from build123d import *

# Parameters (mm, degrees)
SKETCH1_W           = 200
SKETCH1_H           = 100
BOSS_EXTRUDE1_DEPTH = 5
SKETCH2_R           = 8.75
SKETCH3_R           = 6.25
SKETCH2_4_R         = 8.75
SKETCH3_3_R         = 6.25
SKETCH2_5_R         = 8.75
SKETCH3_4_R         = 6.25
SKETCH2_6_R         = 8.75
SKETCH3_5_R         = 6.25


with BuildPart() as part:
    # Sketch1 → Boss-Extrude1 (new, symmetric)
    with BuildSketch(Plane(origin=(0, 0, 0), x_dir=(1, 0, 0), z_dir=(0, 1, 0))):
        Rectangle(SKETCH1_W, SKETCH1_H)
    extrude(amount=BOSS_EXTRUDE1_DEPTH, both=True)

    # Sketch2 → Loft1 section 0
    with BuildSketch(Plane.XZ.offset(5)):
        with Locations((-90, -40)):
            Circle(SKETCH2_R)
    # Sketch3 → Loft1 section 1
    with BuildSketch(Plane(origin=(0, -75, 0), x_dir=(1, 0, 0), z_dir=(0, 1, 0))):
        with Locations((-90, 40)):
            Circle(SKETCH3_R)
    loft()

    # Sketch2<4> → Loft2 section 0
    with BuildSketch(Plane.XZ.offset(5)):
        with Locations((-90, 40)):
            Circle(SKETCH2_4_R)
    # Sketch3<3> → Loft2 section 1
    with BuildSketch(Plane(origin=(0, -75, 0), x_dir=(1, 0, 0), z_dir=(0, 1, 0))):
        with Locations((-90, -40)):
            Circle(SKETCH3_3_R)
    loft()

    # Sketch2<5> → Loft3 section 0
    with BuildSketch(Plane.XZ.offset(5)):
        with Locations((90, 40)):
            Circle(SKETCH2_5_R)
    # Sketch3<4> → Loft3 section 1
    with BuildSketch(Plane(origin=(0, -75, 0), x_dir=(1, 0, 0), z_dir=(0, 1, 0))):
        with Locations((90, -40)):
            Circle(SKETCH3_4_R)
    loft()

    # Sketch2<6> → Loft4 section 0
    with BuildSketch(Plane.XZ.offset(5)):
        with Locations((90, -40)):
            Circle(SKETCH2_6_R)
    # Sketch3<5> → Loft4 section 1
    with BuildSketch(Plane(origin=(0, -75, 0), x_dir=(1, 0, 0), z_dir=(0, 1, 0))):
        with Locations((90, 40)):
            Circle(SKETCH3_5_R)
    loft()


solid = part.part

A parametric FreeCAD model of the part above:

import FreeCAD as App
import Part
import Sketcher

V = App.Vector
Q = App.Units.Quantity

doc = App.newDocument("Part")
params = doc.addObject("Spreadsheet::Sheet", "Params")
for row, (alias, value) in enumerate([
    ("sketch1_width", "200 mm"),
    ("sketch1_height", "100 mm"),
    ("pad1_length", "10 mm"),
    ("sketch2_diameter", "17.5 mm"),
    ("sketch3_diameter", "12.5 mm"),
    ("sketch4_diameter", "17.5 mm"),
    ("sketch5_diameter", "12.5 mm"),
    ("sketch6_diameter", "17.5 mm"),
    ("sketch7_diameter", "12.5 mm"),
    ("sketch8_diameter", "17.5 mm"),
    ("sketch9_diameter", "12.5 mm"),
], start=1):
    params.set(f"A{row}", alias)
    params.set(f"B{row}", "=" + value)
    params.setAlias(f"B{row}", alias)

body = doc.addObject("PartDesign::Body", "Body")

# Sketch on XZ plane
sketch1 = doc.addObject("Sketcher::SketchObject", "Sketch")
body.addObject(sketch1)
sketch1.AttachmentSupport = (doc.XZ_Plane, [""])
sketch1.MapMode = "FlatFace"
sketch1.addGeometry([
    Part.LineSegment(V(-100, -50, 0), V(-100, 50, 0)),
    Part.LineSegment(V(-100, 50, 0), V(100, 50, 0)),
    Part.LineSegment(V(100, 50, 0), V(100, -50, 0)),
    Part.LineSegment(V(100, -50, 0), V(-100, -50, 0)),
], False)
sketch1.addConstraint([
    Sketcher.Constraint("Coincident", 0, 2, 1, 1),
    Sketcher.Constraint("Coincident", 1, 2, 2, 1),
    Sketcher.Constraint("Coincident", 2, 2, 3, 1),
    Sketcher.Constraint("Coincident", 3, 2, 0, 1),
    Sketcher.Constraint("Vertical", 0),
    Sketcher.Constraint("Horizontal", 1),
    Sketcher.Constraint("Vertical", 2),
    Sketcher.Constraint("Horizontal", 3),
    Sketcher.Constraint("Symmetric", 0, 2, 2, 2, -1, 1),
    Sketcher.Constraint("DistanceX", 1, 1, 1, 2, Q("200 mm")),
    Sketcher.Constraint("DistanceY", 0, 1, 0, 2, Q("100 mm")),
])
sketch1.setExpression("Constraints[9]", "Params.sketch1_width")
sketch1.setExpression("Constraints[10]", "Params.sketch1_height")
pad1 = doc.addObject("PartDesign::Pad", "Pad")
body.addObject(pad1)
pad1.Profile = sketch1
pad1.setExpression("Length", "Params.pad1_length")
pad1.Midplane = True

# Sketch on XZ plane
sketch2 = doc.addObject("Sketcher::SketchObject", "Sketch001")
body.addObject(sketch2)
sketch2.AttachmentSupport = (doc.XZ_Plane, [""])
sketch2.MapMode = "FlatFace"
sketch2.AttachmentOffset = App.Placement(V(0, 0, 5), App.Rotation())
sketch2.addGeometry(Part.Circle(V(-90, -40, 0), V(0, 0, 1), 9), False)
sketch2.addConstraint([
    Sketcher.Constraint("Diameter", 0, Q("17.5 mm")),
    Sketcher.Constraint("DistanceX", 0, 3, -1, 1, Q("90 mm")),
    Sketcher.Constraint("DistanceY", 0, 3, -1, 1, Q("40 mm")),
])
sketch2.setExpression("Constraints[0]", "Params.sketch2_diameter")

# Sketch on XZ plane
sketch3 = doc.addObject("Sketcher::SketchObject", "Sketch002")
body.addObject(sketch3)
sketch3.AttachmentSupport = (doc.XZ_Plane, [""])
sketch3.MapMode = "FlatFace"
sketch3.AttachmentOffset = App.Placement(V(0, 0, 75), App.Rotation())
sketch3.addGeometry(Part.Circle(V(-90, -40, 0), V(0, 0, 1), 6), False)
sketch3.addConstraint([
    Sketcher.Constraint("Diameter", 0, Q("12.5 mm")),
    Sketcher.Constraint("DistanceX", 0, 3, -1, 1, Q("90 mm")),
    Sketcher.Constraint("DistanceY", 0, 3, -1, 1, Q("40 mm")),
])
sketch3.setExpression("Constraints[0]", "Params.sketch3_diameter")

additiveloft = doc.addObject("PartDesign::AdditiveLoft", "AdditiveLoft")
body.addObject(additiveloft)
additiveloft.Profile = sketch2
additiveloft.Sections = [sketch3]

# Sketch on XZ plane
sketch4 = doc.addObject("Sketcher::SketchObject", "Sketch003")
body.addObject(sketch4)
sketch4.AttachmentSupport = (doc.XZ_Plane, [""])
sketch4.MapMode = "FlatFace"
sketch4.AttachmentOffset = App.Placement(V(0, 0, 5), App.Rotation())
sketch4.addGeometry(Part.Circle(V(-90, 40, 0), V(0, 0, 1), 9), False)
sketch4.addConstraint([
    Sketcher.Constraint("Diameter", 0, Q("17.5 mm")),
    Sketcher.Constraint("DistanceX", 0, 3, -1, 1, Q("90 mm")),
    Sketcher.Constraint("DistanceY", -1, 1, 0, 3, Q("40 mm")),
])
sketch4.setExpression("Constraints[0]", "Params.sketch4_diameter")

# Sketch on XZ plane
sketch5 = doc.addObject("Sketcher::SketchObject", "Sketch004")
body.addObject(sketch5)
sketch5.AttachmentSupport = (doc.XZ_Plane, [""])
sketch5.MapMode = "FlatFace"
sketch5.AttachmentOffset = App.Placement(V(0, 0, 75), App.Rotation())
sketch5.addGeometry(Part.Circle(V(-90, 40, 0), V(0, 0, 1), 6), False)
sketch5.addConstraint([
    Sketcher.Constraint("Diameter", 0, Q("12.5 mm")),
    Sketcher.Constraint("DistanceX", 0, 3, -1, 1, Q("90 mm")),
    Sketcher.Constraint("DistanceY", -1, 1, 0, 3, Q("40 mm")),
])
sketch5.setExpression("Constraints[0]", "Params.sketch5_diameter")

additiveloft2 = doc.addObject("PartDesign::AdditiveLoft", "AdditiveLoft001")
body.addObject(additiveloft2)
additiveloft2.Profile = sketch4
additiveloft2.Sections = [sketch5]

# Sketch on XZ plane
sketch6 = doc.addObject("Sketcher::SketchObject", "Sketch005")
body.addObject(sketch6)
sketch6.AttachmentSupport = (doc.XZ_Plane, [""])
sketch6.MapMode = "FlatFace"
sketch6.AttachmentOffset = App.Placement(V(0, 0, 5), App.Rotation())
sketch6.addGeometry(Part.Circle(V(90, 40, 0), V(0, 0, 1), 9), False)
sketch6.addConstraint([
    Sketcher.Constraint("Diameter", 0, Q("17.5 mm")),
    Sketcher.Constraint("DistanceX", -1, 1, 0, 3, Q("90 mm")),
    Sketcher.Constraint("DistanceY", -1, 1, 0, 3, Q("40 mm")),
])
sketch6.setExpression("Constraints[0]", "Params.sketch6_diameter")

# Sketch on XZ plane
sketch7 = doc.addObject("Sketcher::SketchObject", "Sketch006")
body.addObject(sketch7)
sketch7.AttachmentSupport = (doc.XZ_Plane, [""])
sketch7.MapMode = "FlatFace"
sketch7.AttachmentOffset = App.Placement(V(0, 0, 75), App.Rotation())
sketch7.addGeometry(Part.Circle(V(90, 40, 0), V(0, 0, 1), 6), False)
sketch7.addConstraint([
    Sketcher.Constraint("Diameter", 0, Q("12.5 mm")),
    Sketcher.Constraint("DistanceX", -1, 1, 0, 3, Q("90 mm")),
    Sketcher.Constraint("DistanceY", -1, 1, 0, 3, Q("40 mm")),
])
sketch7.setExpression("Constraints[0]", "Params.sketch7_diameter")

additiveloft3 = doc.addObject("PartDesign::AdditiveLoft", "AdditiveLoft002")
body.addObject(additiveloft3)
additiveloft3.Profile = sketch6
additiveloft3.Sections = [sketch7]

# Sketch on XZ plane
sketch8 = doc.addObject("Sketcher::SketchObject", "Sketch007")
body.addObject(sketch8)
sketch8.AttachmentSupport = (doc.XZ_Plane, [""])
sketch8.MapMode = "FlatFace"
sketch8.AttachmentOffset = App.Placement(V(0, 0, 5), App.Rotation())
sketch8.addGeometry(Part.Circle(V(90, -40, 0), V(0, 0, 1), 9), False)
sketch8.addConstraint([
    Sketcher.Constraint("Diameter", 0, Q("17.5 mm")),
    Sketcher.Constraint("DistanceX", -1, 1, 0, 3, Q("90 mm")),
    Sketcher.Constraint("DistanceY", 0, 3, -1, 1, Q("40 mm")),
])
sketch8.setExpression("Constraints[0]", "Params.sketch8_diameter")

# Sketch on XZ plane
sketch9 = doc.addObject("Sketcher::SketchObject", "Sketch008")
body.addObject(sketch9)
sketch9.AttachmentSupport = (doc.XZ_Plane, [""])
sketch9.MapMode = "FlatFace"
sketch9.AttachmentOffset = App.Placement(V(0, 0, 75), App.Rotation())
sketch9.addGeometry(Part.Circle(V(90, -40, 0), V(0, 0, 1), 6), False)
sketch9.addConstraint([
    Sketcher.Constraint("Diameter", 0, Q("12.5 mm")),
    Sketcher.Constraint("DistanceX", -1, 1, 0, 3, Q("90 mm")),
    Sketcher.Constraint("DistanceY", 0, 3, -1, 1, Q("40 mm")),
])
sketch9.setExpression("Constraints[0]", "Params.sketch9_diameter")

additiveloft4 = doc.addObject("PartDesign::AdditiveLoft", "AdditiveLoft003")
body.addObject(additiveloft4)
additiveloft4.Profile = sketch8
additiveloft4.Sections = [sketch9]

doc.recompute()
